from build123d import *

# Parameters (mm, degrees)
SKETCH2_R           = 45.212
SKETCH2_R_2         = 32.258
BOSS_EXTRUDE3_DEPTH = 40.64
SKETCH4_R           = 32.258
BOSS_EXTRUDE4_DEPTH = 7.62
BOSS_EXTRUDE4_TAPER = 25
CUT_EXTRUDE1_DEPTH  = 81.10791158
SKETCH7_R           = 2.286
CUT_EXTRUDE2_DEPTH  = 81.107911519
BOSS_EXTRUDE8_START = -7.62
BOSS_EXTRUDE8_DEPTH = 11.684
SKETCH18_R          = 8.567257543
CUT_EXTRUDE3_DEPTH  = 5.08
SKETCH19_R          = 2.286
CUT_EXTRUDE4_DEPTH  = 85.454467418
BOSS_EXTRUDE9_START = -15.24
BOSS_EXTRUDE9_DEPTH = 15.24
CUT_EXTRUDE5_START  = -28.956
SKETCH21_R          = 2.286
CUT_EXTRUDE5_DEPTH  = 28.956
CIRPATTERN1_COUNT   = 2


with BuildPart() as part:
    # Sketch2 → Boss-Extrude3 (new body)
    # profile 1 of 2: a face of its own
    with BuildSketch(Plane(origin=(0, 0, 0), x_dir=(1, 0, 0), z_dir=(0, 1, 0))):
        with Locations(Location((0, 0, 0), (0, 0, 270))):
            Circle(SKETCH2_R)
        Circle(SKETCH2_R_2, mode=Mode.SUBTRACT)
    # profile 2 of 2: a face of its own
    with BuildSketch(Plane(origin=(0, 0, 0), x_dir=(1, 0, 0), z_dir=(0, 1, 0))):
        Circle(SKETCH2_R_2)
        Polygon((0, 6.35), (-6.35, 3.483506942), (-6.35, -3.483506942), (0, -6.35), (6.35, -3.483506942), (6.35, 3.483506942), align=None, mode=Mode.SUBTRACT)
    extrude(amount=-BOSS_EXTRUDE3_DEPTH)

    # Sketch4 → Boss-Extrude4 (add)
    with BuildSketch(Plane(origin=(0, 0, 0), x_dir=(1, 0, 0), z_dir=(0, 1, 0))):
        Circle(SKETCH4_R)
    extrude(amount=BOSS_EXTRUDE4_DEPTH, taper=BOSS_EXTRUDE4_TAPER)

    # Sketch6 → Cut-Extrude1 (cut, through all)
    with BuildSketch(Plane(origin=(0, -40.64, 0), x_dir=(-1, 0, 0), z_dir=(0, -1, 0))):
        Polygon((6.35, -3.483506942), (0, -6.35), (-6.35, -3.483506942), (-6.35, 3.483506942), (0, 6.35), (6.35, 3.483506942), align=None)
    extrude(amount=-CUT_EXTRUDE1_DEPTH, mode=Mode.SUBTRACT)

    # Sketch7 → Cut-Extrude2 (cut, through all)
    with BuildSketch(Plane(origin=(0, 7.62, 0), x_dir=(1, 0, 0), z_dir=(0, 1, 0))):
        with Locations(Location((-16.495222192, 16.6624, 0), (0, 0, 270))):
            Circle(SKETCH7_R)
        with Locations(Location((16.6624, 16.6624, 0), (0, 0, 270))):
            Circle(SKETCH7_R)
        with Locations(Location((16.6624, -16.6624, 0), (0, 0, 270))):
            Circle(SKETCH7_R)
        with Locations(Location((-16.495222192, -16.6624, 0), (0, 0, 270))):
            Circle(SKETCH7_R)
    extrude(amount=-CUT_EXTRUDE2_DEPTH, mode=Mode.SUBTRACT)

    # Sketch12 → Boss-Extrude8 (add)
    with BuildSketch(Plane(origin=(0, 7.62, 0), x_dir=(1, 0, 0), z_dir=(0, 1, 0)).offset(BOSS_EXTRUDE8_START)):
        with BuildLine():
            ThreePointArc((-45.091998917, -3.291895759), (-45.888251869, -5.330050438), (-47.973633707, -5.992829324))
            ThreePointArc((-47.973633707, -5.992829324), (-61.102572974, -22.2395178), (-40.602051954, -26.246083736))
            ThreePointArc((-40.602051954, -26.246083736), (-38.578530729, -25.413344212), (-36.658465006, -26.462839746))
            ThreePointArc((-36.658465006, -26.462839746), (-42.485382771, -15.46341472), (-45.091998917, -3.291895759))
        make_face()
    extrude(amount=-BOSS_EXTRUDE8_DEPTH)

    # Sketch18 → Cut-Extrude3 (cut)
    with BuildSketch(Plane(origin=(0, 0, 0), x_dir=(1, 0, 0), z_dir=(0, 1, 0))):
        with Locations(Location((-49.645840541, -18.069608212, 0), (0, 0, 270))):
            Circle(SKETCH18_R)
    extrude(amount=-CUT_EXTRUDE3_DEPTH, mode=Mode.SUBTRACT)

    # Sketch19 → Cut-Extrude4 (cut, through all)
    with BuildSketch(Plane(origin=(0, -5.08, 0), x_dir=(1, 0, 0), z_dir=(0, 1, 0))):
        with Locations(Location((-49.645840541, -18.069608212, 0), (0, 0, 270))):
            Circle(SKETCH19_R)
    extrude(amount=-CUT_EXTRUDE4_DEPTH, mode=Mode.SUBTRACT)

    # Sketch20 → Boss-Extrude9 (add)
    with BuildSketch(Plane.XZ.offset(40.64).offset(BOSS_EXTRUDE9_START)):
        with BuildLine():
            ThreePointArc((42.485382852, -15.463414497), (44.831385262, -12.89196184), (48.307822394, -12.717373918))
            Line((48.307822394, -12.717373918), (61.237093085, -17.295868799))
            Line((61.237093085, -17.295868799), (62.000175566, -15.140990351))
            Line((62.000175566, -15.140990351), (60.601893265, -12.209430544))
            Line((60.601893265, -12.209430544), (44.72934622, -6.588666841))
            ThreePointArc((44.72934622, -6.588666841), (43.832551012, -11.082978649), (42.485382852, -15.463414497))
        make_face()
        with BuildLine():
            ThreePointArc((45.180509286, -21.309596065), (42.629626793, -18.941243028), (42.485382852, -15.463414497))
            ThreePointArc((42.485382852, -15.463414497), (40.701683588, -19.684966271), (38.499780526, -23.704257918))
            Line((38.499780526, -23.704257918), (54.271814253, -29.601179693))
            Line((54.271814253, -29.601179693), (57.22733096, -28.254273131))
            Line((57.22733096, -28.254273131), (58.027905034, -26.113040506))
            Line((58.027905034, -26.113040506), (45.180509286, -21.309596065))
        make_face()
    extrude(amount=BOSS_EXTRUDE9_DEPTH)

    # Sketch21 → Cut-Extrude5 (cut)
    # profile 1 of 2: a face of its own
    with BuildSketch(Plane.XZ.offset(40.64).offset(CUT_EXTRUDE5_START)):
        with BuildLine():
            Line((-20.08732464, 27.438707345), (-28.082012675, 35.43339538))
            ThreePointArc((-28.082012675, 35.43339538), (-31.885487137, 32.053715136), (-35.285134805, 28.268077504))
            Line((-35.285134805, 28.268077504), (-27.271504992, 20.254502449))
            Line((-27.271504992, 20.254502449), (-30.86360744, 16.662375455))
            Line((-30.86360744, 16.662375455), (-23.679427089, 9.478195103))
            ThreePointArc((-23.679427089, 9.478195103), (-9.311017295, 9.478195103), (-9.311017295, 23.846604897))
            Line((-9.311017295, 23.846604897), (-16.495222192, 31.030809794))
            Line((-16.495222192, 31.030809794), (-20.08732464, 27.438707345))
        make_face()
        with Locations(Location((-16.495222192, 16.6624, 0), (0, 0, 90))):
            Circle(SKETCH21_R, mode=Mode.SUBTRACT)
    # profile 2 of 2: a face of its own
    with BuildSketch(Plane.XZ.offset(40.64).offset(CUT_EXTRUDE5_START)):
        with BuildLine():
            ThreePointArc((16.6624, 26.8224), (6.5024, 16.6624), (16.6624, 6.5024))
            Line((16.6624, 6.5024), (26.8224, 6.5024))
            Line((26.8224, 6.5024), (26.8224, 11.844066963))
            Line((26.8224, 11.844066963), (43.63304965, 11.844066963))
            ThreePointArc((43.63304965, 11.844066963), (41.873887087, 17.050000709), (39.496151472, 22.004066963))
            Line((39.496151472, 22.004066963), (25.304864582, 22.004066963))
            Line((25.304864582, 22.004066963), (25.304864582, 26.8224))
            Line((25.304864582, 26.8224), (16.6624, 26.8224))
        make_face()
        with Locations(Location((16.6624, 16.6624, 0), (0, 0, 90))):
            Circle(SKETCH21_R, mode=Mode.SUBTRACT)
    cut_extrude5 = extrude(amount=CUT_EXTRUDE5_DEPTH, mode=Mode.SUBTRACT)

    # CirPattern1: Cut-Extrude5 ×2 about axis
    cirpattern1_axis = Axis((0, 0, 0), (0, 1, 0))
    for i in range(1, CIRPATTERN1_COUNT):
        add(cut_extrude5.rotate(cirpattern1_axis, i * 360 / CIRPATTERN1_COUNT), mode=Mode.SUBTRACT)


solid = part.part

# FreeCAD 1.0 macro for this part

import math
import FreeCAD as App
import Part
import Sketcher
from FreeCAD import Vector
Q = App.Units.Quantity

doc = App.newDocument("Part")
body = doc.addObject("PartDesign::Body", "Body")

# Sketch on XZ plane
sketch1 = body.newObject("Sketcher::SketchObject", "Sketch")
sketch1.AttachmentSupport = (doc.getObject("XZ_Plane"), [""])
sketch1.MapMode = "FlatFace"
sketch1.addGeometry(Part.Circle(Vector(0, 0, 0), Vector(0, 0, 1), 45), False)
sketch1.addGeometry(Part.LineSegment(Vector(0, -6, 0), Vector(6, -3, 0)), False)
sketch1.addGeometry(Part.LineSegment(Vector(6, -3, 0), Vector(6, 3, 0)), False)
sketch1.addGeometry(Part.LineSegment(Vector(6, 3, 0), Vector(0, 6, 0)), False)
sketch1.addGeometry(Part.LineSegment(Vector(0, 6, 0), Vector(-6, 3, 0)), False)
sketch1.addGeometry(Part.LineSegment(Vector(-6, 3, 0), Vector(-6, -3, 0)), False)
sketch1.addGeometry(Part.LineSegment(Vector(-6, -3, 0), Vector(0, -6, 0)), False)
sketch1.addConstraint(Sketcher.Constraint("Coincident", 1, 2, 2, 1))
sketch1.addConstraint(Sketcher.Constraint("Coincident", 2, 2, 3, 1))
sketch1.addConstraint(Sketcher.Constraint("Coincident", 3, 2, 4, 1))
sketch1.addConstraint(Sketcher.Constraint("Coincident", 4, 2, 5, 1))
sketch1.addConstraint(Sketcher.Constraint("Coincident", 5, 2, 6, 1))
sketch1.addConstraint(Sketcher.Constraint("Coincident", 6, 2, 1, 1))
sketch1.addConstraint(Sketcher.Constraint("Vertical", 2))
sketch1.addConstraint(Sketcher.Constraint("Vertical", 5))
sketch1.addConstraint(Sketcher.Constraint("Coincident", 0, 3, -1, 1))
sketch1.addConstraint(Sketcher.Constraint("Symmetric", 1, 2, 4, 2, -1, 1))
sketch1.addConstraint(Sketcher.Constraint("Symmetric", 3, 2, 6, 2, -1, 1))
sketch1.addConstraint(Sketcher.Constraint("PointOnObject", 3, 2, -2))
sketch1.addConstraint(Sketcher.Constraint("Parallel", 3, 6))
sketch1.addConstraint(Sketcher.Constraint("Horizontal", 2, 2, 4, 2))
sketch1.addConstraint(Sketcher.Constraint("Diameter", 0, Q("3.56 in")))
sketch1.addConstraint(Sketcher.Constraint("DistanceX", 4, 2, 2, 2, Q("0.5 in")))
sketch1.addConstraint(Sketcher.Constraint("DistanceY", -1, 1, 3, 2, Q("0.25 in")))
sketch1.addConstraint(Sketcher.Constraint("DistanceY", 2, 1, 2, 2, Q("6.967014 mm")))
pad1 = body.newObject("PartDesign::Pad", "Pad")
pad1.Profile = sketch1
pad1.Length = Q("1.6 in")

# Sketch on XZ plane
sketch2 = body.newObject("Sketcher::SketchObject", "Sketch001")
sketch2.AttachmentSupport = (doc.getObject("XZ_Plane"), [""])
sketch2.MapMode = "FlatFace"
sketch2.addGeometry(Part.Circle(Vector(0, 0, 0), Vector(0, 0, 1), 32), False)
sketch2.addConstraint(Sketcher.Constraint("Coincident", 0, 3, -1, 1))
sketch2.addConstraint(Sketcher.Constraint("Diameter", 0, Q("2.54 in")))
pad2 = body.newObject("PartDesign::Pad", "Pad001")
pad2.Profile = sketch2
pad2.Length = Q("0.3 in")
pad2.Reversed = True
pad2.TaperAngle = -25

# Sketch on XZ plane
sketch3 = body.newObject("Sketcher::SketchObject", "Sketch002")
sketch3.AttachmentSupport = (doc.getObject("XZ_Plane"), [""])
sketch3.MapMode = "FlatFace"
sketch3.AttachmentOffset = App.Placement(Vector(0, 0, 1.6 * 25.4), App.Rotation())
sketch3.addGeometry(Part.LineSegment(Vector(0, 6, 0), Vector(-6, 3, 0)), False)
sketch3.addGeometry(Part.LineSegment(Vector(-6, 3, 0), Vector(-6, -3, 0)), False)
sketch3.addGeometry(Part.LineSegment(Vector(-6, -3, 0), Vector(0, -6, 0)), False)
sketch3.addGeometry(Part.LineSegment(Vector(0, -6, 0), Vector(6, -3, 0)), False)
sketch3.addGeometry(Part.LineSegment(Vector(6, -3, 0), Vector(6, 3, 0)), False)
sketch3.addGeometry(Part.LineSegment(Vector(6, 3, 0), Vector(0, 6, 0)), False)
sketch3.addConstraint(Sketcher.Constraint("Coincident", 0, 2, 1, 1))
sketch3.addConstraint(Sketcher.Constraint("Coincident", 1, 2, 2, 1))
sketch3.addConstraint(Sketcher.Constraint("Coincident", 2, 2, 3, 1))
sketch3.addConstraint(Sketcher.Constraint("Coincident", 3, 2, 4, 1))
sketch3.addConstraint(Sketcher.Constraint("Coincident", 4, 2, 5, 1))
sketch3.addConstraint(Sketcher.Constraint("Coincident", 5, 2, 0, 1))
sketch3.addConstraint(Sketcher.Constraint("Vertical", 1))
sketch3.addConstraint(Sketcher.Constraint("Vertical", 4))
sketch3.addConstraint(Sketcher.Constraint("Symmetric", 0, 2, 3, 2, -1, 1))
sketch3.addConstraint(Sketcher.Constraint("Symmetric", 2, 2, 5, 2, -1, 1))
sketch3.addConstraint(Sketcher.Constraint("PointOnObject", 2, 2, -2))
sketch3.addConstraint(Sketcher.Constraint("Parallel", 2, 5))
sketch3.addConstraint(Sketcher.Constraint("Horizontal", 1, 2, 3, 2))
sketch3.addConstraint(Sketcher.Constraint("DistanceX", 1, 2, 3, 2, Q("0.5 in")))
sketch3.addConstraint(Sketcher.Constraint("DistanceY", 2, 2, 5, 2, Q("0.5 in")))
sketch3.addConstraint(Sketcher.Constraint("DistanceY", 1, 2, 1, 1, Q("6.967014 mm")))
pocket1 = body.newObject("PartDesign::Pocket", "Pocket")
pocket1.Profile = sketch3
pocket1.Type = "ThroughAll"

# Sketch on XZ plane
sketch4 = body.newObject("Sketcher::SketchObject", "Sketch003")
sketch4.AttachmentSupport = (doc.getObject("XZ_Plane"), [""])
sketch4.MapMode = "FlatFace"
sketch4.AttachmentOffset = App.Placement(Vector(0, 0, -0.3 * 25.4), App.Rotation())
sketch4.addGeometry(Part.Circle(Vector(-16.5, -16.7, 0), Vector(0, 0, 1), 2.3), False)
sketch4.addGeometry(Part.Circle(Vector(16.7, -16.7, 0), Vector(0, 0, 1), 2.3), False)
sketch4.addGeometry(Part.Circle(Vector(16.7, 16.7, 0), Vector(0, 0, 1), 2.3), False)
sketch4.addGeometry(Part.Circle(Vector(-16.5, 16.7, 0), Vector(0, 0, 1), 2.3), False)
sketch4.addConstraint(Sketcher.Constraint("Equal", 0, 1))
sketch4.addConstraint(Sketcher.Constraint("Equal", 1, 2))
sketch4.addConstraint(Sketcher.Constraint("Equal", 2, 3))
sketch4.addConstraint(Sketcher.Constraint("Symmetric", 1, 3, 2, 3, -1))
sketch4.addConstraint(Sketcher.Constraint("Symmetric", 0, 3, 3, 3, -1))
sketch4.addConstraint(Sketcher.Constraint("Horizontal", 0, 3, 1, 3))
sketch4.addConstraint(Sketcher.Constraint("Diameter", 0, Q("0.18 in")))
sketch4.addConstraint(Sketcher.Constraint("DistanceY", 0, 3, -1, 1, Q("0.656 in")))
sketch4.addConstraint(Sketcher.Constraint("DistanceX", -1, 1, 1, 3, Q("0.656 in")))
sketch4.addConstraint(Sketcher.Constraint("DistanceX", 0, 3, -1, 1, Q("16.495222 mm")))
pocket2 = body.newObject("PartDesign::Pocket", "Pocket001")
pocket2.Profile = sketch4
pocket2.Type = "ThroughAll"
pocket2.Reversed = True

# Sketch on XZ plane
sketch5 = body.newObject("Sketcher::SketchObject", "Sketch004")
sketch5.AttachmentSupport = (doc.getObject("XZ_Plane"), [""])
sketch5.MapMode = "FlatFace"
sketch5.addGeometry(Part.ArcOfCircle(Part.Circle(Vector(-47.6, 3.5, 0), Vector(0, 0, 1), 2.5), math.radians(-4), math.radians(98)), False)
sketch5.addGeometry(Part.ArcOfCircle(Part.Circle(Vector(-49.6, 18.1, 0), Vector(0, 0, 1), 12.2), math.radians(42), math.radians(278)), False)
sketch5.addGeometry(Part.ArcOfCircle(Part.Circle(Vector(-38.7, 27.9, 0), Vector(0, 0, 1), 2.5), math.radians(-138), math.radians(-36)), False)
sketch5.addGeometry(Part.ArcOfCircle(Part.Circle(Vector(0, 0, 0), Vector(0, 0, 1), 45.2), math.radians(144), math.radians(176)), False)
sketch5.addConstraint(Sketcher.Constraint("Tangent", 0, 2, 1, 2))
sketch5.addConstraint(Sketcher.Constraint("Tangent", 1, 1, 2, 1))
sketch5.addConstraint(Sketcher.Constraint("Tangent", 2, 2, 3, 1))
sketch5.addConstraint(Sketcher.Constraint("Tangent", 3, 2, 0, 1))
sketch5.addConstraint(Sketcher.Constraint("Coincident", 3, 3, -1, 1))
sketch5.addConstraint(Sketcher.Constraint("Equal", 0, 2))
sketch5.addConstraint(Sketcher.Constraint("Radius", 0, Q("0.1 in")))
sketch5.addConstraint(Sketcher.Constraint("Radius", 1, Q("0.48 in")))
sketch5.addConstraint(Sketcher.Constraint("Radius", 3, Q("1.78 in")))
sketch5.addConstraint(Sketcher.Constraint("DistanceX", 3, 2, -1, 1, Q("45.091999 mm")))
sketch5.addConstraint(Sketcher.Constraint("DistanceX", 1, 3, -1, 1, Q("49.645841 mm")))
pad3 = body.newObject("PartDesign::Pad", "Pad002")
pad3.Profile = sketch5
pad3.Length = Q("0.46 in")

# Sketch on XZ plane
sketch6 = body.newObject("Sketcher::SketchObject", "Sketch005")
sketch6.AttachmentSupport = (doc.getObject("XZ_Plane"), [""])
sketch6.MapMode = "FlatFace"
sketch6.addGeometry(Part.Circle(Vector(-50, 18, 0), Vector(0, 0, 1), 9), False)
sketch6.addConstraint(Sketcher.Constraint("Diameter", 0, Q("17.134515 mm")))
sketch6.addConstraint(Sketcher.Constraint("DistanceX", 0, 3, -1, 1, Q("49.645841 mm")))
sketch6.addConstraint(Sketcher.Constraint("DistanceY", -1, 1, 0, 3, Q("18.069608 mm")))
pocket3 = body.newObject("PartDesign::Pocket", "Pocket002")
pocket3.Profile = sketch6
pocket3.Length = Q("0.2 in")
pocket3.Reversed = True

# Sketch on XZ plane
sketch7 = body.newObject("Sketcher::SketchObject", "Sketch006")
sketch7.AttachmentSupport = (doc.getObject("XZ_Plane"), [""])
sketch7.MapMode = "FlatFace"
sketch7.AttachmentOffset = App.Placement(Vector(0, 0, 0.2 * 25.4), App.Rotation())
sketch7.addGeometry(Part.Circle(Vector(-49.6, 18.1, 0), Vector(0, 0, 1), 2.3), False)
sketch7.addConstraint(Sketcher.Constraint("Diameter", 0, Q("0.18 in")))
sketch7.addConstraint(Sketcher.Constraint("DistanceX", 0, 3, -1, 1, Q("49.645841 mm")))
sketch7.addConstraint(Sketcher.Constraint("DistanceY", -1, 1, 0, 3, Q("18.069608 mm")))
pocket4 = body.newObject("PartDesign::Pocket", "Pocket003")
pocket4.Profile = sketch7
pocket4.Type = "ThroughAll"
pocket4.Reversed = True

# Sketch on XZ plane
sketch8 = body.newObject("Sketcher::SketchObject", "Sketch007")
sketch8.AttachmentSupport = (doc.getObject("XZ_Plane"), [""])
sketch8.MapMode = "FlatFace"
sketch8.AttachmentOffset = App.Placement(Vector(0, 0, 1 * 25.4), App.Rotation())
sketch8.addGeometry(Part.ArcOfCircle(Part.Circle(Vector(46.8, -17, 0), Vector(0, 0, 1), 4.6), math.radians(71), math.radians(160)), False)
sketch8.addGeometry(Part.LineSegment(Vector(48.3, -12.7, 0), Vector(61.2, -17.3, 0)), False)
sketch8.addGeometry(Part.LineSegment(Vector(61.2, -17.3, 0), Vector(62, -15.1, 0)), False)
sketch8.addGeometry(Part.LineSegment(Vector(62, -15.1, 0), Vector(60.6, -12.2, 0)), False)
sketch8.addGeometry(Part.LineSegment(Vector(60.6, -12.2, 0), Vector(44.7, -6.6, 0)), False)
sketch8.addGeometry(Part.ArcOfCircle(Part.Circle(Vector(0, 0, 0), Vector(0, 0, 1), 45.2), math.radians(-20), math.radians(-8.38)), False)
sketch8.addGeometry(Part.ArcOfCircle(Part.Circle(Vector(46.8, -17, 0), Vector(0, 0, 1), 4.6), math.radians(160), math.radians(249)), False)
sketch8.addGeometry(Part.ArcOfCircle(Part.Circle(Vector(0, 0, 0), Vector(0, 0, 1), 45.2), math.radians(-31.62), math.radians(-20)), False)
sketch8.addGeometry(Part.LineSegment(Vector(38.5, -23.7, 0), Vector(54.3, -29.6, 0)), False)
sketch8.addGeometry(Part.LineSegment(Vector(54.3, -29.6, 0), Vector(57.2, -28.3, 0)), False)
sketch8.addGeometry(Part.LineSegment(Vector(57.2, -28.3, 0), Vector(58, -26.1, 0)), False)
sketch8.addGeometry(Part.LineSegment(Vector(58, -26.1, 0), Vector(45.2, -21.3, 0)), False)
sketch8.addConstraint(Sketcher.Constraint("Tangent", 0, 1, 1, 1))
sketch8.addConstraint(Sketcher.Constraint("Coincident", 1, 2, 2, 1))
sketch8.addConstraint(Sketcher.Constraint("Coincident", 2, 2, 3, 1))
sketch8.addConstraint(Sketcher.Constraint("Coincident", 3, 2, 4, 1))
sketch8.addConstraint(Sketcher.Constraint("Coincident", 4, 2, 5, 2))
sketch8.addConstraint(Sketcher.Constraint("Tangent", 5, 1, 0, 2))
sketch8.addConstraint(Sketcher.Constraint("Tangent", 6, 1, 7, 2))
sketch8.addConstraint(Sketcher.Constraint("Coincident", 7, 1, 8, 1))
sketch8.addConstraint(Sketcher.Constraint("Coincident", 8, 2, 9, 1))
sketch8.addConstraint(Sketcher.Constraint("Coincident", 9, 2, 10, 1))
sketch8.addConstraint(Sketcher.Constraint("Coincident", 10, 2, 11, 1))
sketch8.addConstraint(Sketcher.Constraint("Tangent", 11, 2, 6, 2))
sketch8.addConstraint(Sketcher.Constraint("Coincident", 5, 3, -1, 1))
sketch8.addConstraint(Sketcher.Constraint("Coincident", 7, 3, -1, 1))
sketch8.addConstraint(Sketcher.Constraint("Coincident", 6, 3, 0, 3))
sketch8.addConstraint(Sketcher.Constraint("Equal", 0, 6))
sketch8.addConstraint(Sketcher.Constraint("Perpendicular", 1, 2))
sketch8.addConstraint(Sketcher.Constraint("Perpendicular", 2, 4))
sketch8.addConstraint(Sketcher.Constraint("Perpendicular", 8, 10))
sketch8.addConstraint(Sketcher.Constraint("Perpendicular", 10, 11))
sketch8.addConstraint(Sketcher.Constraint("Equal", 4, 8))
sketch8.addConstraint(Sketcher.Constraint("Equal", 3, 9))
sketch8.addConstraint(Sketcher.Constraint("Equal", 2, 10))
sketch8.addConstraint(Sketcher.Constraint("Equal", 1, 11))
sketch8.addConstraint(Sketcher.Constraint("Radius", 0, Q("0.18 in")))
sketch8.addConstraint(Sketcher.Constraint("Radius", 5, Q("1.78 in")))
sketch8.addConstraint(Sketcher.Constraint("Angle", 1, Q("-19.5 deg")))
sketch8.addConstraint(Sketcher.Constraint("Angle", 3, Q("115.5 deg")))
sketch8.addConstraint(Sketcher.Constraint("Angle", 8, Q("-20.5 deg")))
sketch8.addConstraint(Sketcher.Constraint("Angle", 9, Q("24.5 deg")))
sketch8.addConstraint(Sketcher.Constraint("Distance", 1, Q("0.54 in")))
sketch8.addConstraint(Sketcher.Constraint("Distance", 2, Q("0.09 in")))
sketch8.addConstraint(Sketcher.Constraint("DistanceX", 3, 2, 1, 2, Q("0.6352 mm")))
pad4 = body.newObject("PartDesign::Pad", "Pad003")
pad4.Profile = sketch8
pad4.Length = Q("0.6 in")

# Sketch on XZ plane
sketch9 = body.newObject("Sketcher::SketchObject", "Sketch008")
sketch9.AttachmentSupport = (doc.getObject("XZ_Plane"), [""])
sketch9.MapMode = "FlatFace"
sketch9.AttachmentOffset = App.Placement(Vector(0, 0, 0.46 * 25.4), App.Rotation())
sketch9.addGeometry(Part.LineSegment(Vector(-20.1, 27.4, 0), Vector(-28.1, 35.4, 0)), False)
sketch9.addGeometry(Part.ArcOfCircle(Part.Circle(Vector(0, 0, 0), Vector(0, 0, 1), 45.2), math.radians(128.4), math.radians(141.3)), False)
sketch9.addGeometry(Part.LineSegment(Vector(-35.3, 28.3, 0), Vector(-27.3, 20.3, 0)), False)
sketch9.addGeometry(Part.LineSegment(Vector(-27.3, 20.3, 0), Vector(-30.9, 16.7, 0)), False)
sketch9.addGeometry(Part.LineSegment(Vector(-30.9, 16.7, 0), Vector(-23.7, 9.5, 0)), False)
sketch9.addGeometry(Part.ArcOfCircle(Part.Circle(Vector(-16.5, 16.7, 0), Vector(0, 0, 1), 10.2), math.radians(-135), math.radians(45)), False)
sketch9.addGeometry(Part.LineSegment(Vector(-9.3, 23.8, 0), Vector(-16.5, 31, 0)), False)
sketch9.addGeometry(Part.LineSegment(Vector(-16.5, 31, 0), Vector(-20.1, 27.4, 0)), False)
sketch9.addGeometry(Part.Circle(Vector(-16.5, 16.7, 0), Vector(0, 0, 1), 2.3), False)
sketch9.addGeometry(Part.ArcOfCircle(Part.Circle(Vector(16.7, 16.7, 0), Vector(0, 0, 1), 10.2), math.radians(90), math.radians(270)), False)
sketch9.addGeometry(Part.LineSegment(Vector(16.7, 6.5, 0), Vector(26.8, 6.5, 0)), False)
sketch9.addGeometry(Part.LineSegment(Vector(26.8, 6.5, 0), Vector(26.8, 11.8, 0)), False)
sketch9.addGeometry(Part.LineSegment(Vector(26.8, 11.8, 0), Vector(43.6, 11.8, 0)), False)
sketch9.addGeometry(Part.ArcOfCircle(Part.Circle(Vector(0, 0, 0), Vector(0, 0, 1), 45.2), math.radians(15.19), math.radians(29.12)), False)
sketch9.addGeometry(Part.LineSegment(Vector(39.5, 22, 0), Vector(25.3, 22, 0)), False)
sketch9.addGeometry(Part.LineSegment(Vector(25.3, 22, 0), Vector(25.3, 26.8, 0)), False)
sketch9.addGeometry(Part.LineSegment(Vector(25.3, 26.8, 0), Vector(16.7, 26.8, 0)), False)
sketch9.addGeometry(Part.Circle(Vector(16.7, 16.7, 0), Vector(0, 0, 1), 2.3), False)
sketch9.addConstraint(Sketcher.Constraint("Coincident", 0, 2, 1, 1))
sketch9.addConstraint(Sketcher.Constraint("Coincident", 1, 2, 2, 1))
sketch9.addConstraint(Sketcher.Constraint("Coincident", 2, 2, 3, 1))
sketch9.addConstraint(Sketcher.Constraint("Coincident", 3, 2, 4, 1))
sketch9.addConstraint(Sketcher.Constraint("Tangent", 4, 2, 5, 1))
sketch9.addConstraint(Sketcher.Constraint("Tangent", 5, 2, 6, 1))
sketch9.addConstraint(Sketcher.Constraint("Coincident", 6, 2, 7, 1))
sketch9.addConstraint(Sketcher.Constraint("Coincident", 7, 2, 0, 1))
sketch9.addConstraint(Sketcher.Constraint("Tangent", 9, 2, 10, 1))
sketch9.addConstraint(Sketcher.Constraint("Coincident", 10, 2, 11, 1))
sketch9.addConstraint(Sketcher.Constraint("Coincident", 11, 2, 12, 1))
sketch9.addConstraint(Sketcher.Constraint("Coincident", 12, 2, 13, 1))
sketch9.addConstraint(Sketcher.Constraint("Coincident", 13, 2, 14, 1))
sketch9.addConstraint(Sketcher.Constraint("Coincident", 14, 2, 15, 1))
sketch9.addConstraint(Sketcher.Constraint("Coincident", 15, 2, 16, 1))
sketch9.addConstraint(Sketcher.Constraint("Tangent", 16, 2, 9, 1))
sketch9.addConstraint(Sketcher.Constraint("Horizontal", 10))
sketch9.addConstraint(Sketcher.Constraint("Vertical", 11))
sketch9.addConstraint(Sketcher.Constraint("Horizontal", 12))
sketch9.addConstraint(Sketcher.Constraint("Horizontal", 14))
sketch9.addConstraint(Sketcher.Constraint("Vertical", 15))
sketch9.addConstraint(Sketcher.Constraint("Horizontal", 16))
sketch9.addConstraint(Sketcher.Constraint("Coincident", 1, 3, -1, 1))
sketch9.addConstraint(Sketcher.Constraint("Coincident", 13, 3, -1, 1))
sketch9.addConstraint(Sketcher.Constraint("Coincident", 8, 3, 5, 3))
sketch9.addConstraint(Sketcher.Constraint("Coincident", 17, 3, 9, 3))
sketch9.addConstraint(Sketcher.Constraint("Equal", 5, 9))
sketch9.addConstraint(Sketcher.Constraint("Equal", 1, 13))
sketch9.addConstraint(Sketcher.Constraint("Equal", 8, 17))
sketch9.addConstraint(Sketcher.Constraint("Perpendicular", 2, 3))
sketch9.addConstraint(Sketcher.Constraint("Parallel", 0, 4))
sketch9.addConstraint(Sketcher.Constraint("Parallel", 4, 6))
sketch9.addConstraint(Sketcher.Constraint("Perpendicular", 6, 7))
sketch9.addConstraint(Sketcher.Constraint("Horizontal", 8, 3, 9, 3))
sketch9.addConstraint(Sketcher.Constraint("Vertical", 8, 3, 6, 2))
sketch9.addConstraint(Sketcher.Constraint("Radius", 5, Q("0.4 in")))
sketch9.addConstraint(Sketcher.Constraint("Diameter", 8, Q("0.18 in")))
sketch9.addConstraint(Sketcher.Constraint("Radius", 1, Q("1.78 in")))
sketch9.addConstraint(Sketcher.Constraint("DistanceX", 10, 1, 10, 2, Q("0.4 in")))
sketch9.addConstraint(Sketcher.Constraint("Angle", 0, Q("135 deg")))
sketch9.addConstraint(Sketcher.Constraint("Distance", 7, Q("0.2 in")))
sketch9.addConstraint(Sketcher.Constraint("DistanceY", 12, 2, 13, 2, Q("0.4 in")))
sketch9.addConstraint(Sketcher.Constraint("DistanceY", -1, 1, 5, 3, Q("0.656 in")))
sketch9.addConstraint(Sketcher.Constraint("DistanceX", -1, 1, 9, 3, Q("0.656 in")))
sketch9.addConstraint(Sketcher.Constraint("DistanceX", 12, 1, 12, 2, Q("16.81065 mm")))
sketch9.addConstraint(Sketcher.Constraint("DistanceX", 14, 2, 14, 1, Q("14.191287 mm")))
sketch9.addConstraint(Sketcher.Constraint("DistanceX", 0, 2, 5, 3, Q("11.58679 mm")))
sketch9.addConstraint(Sketcher.Constraint("DistanceX", 1, 2, 2, 2, Q("8.01363 mm")))
sketch9.addConstraint(Sketcher.Constraint("DistanceY", 3, 2, 0, 2, Q("18.77102 mm")))
sketch9.addConstraint(Sketcher.Constraint("DistanceX", 2, 2, 7, 2, Q("7.18418 mm")))
pocket5 = body.newObject("PartDesign::Pocket", "Pocket004")
pocket5.Profile = sketch9
pocket5.Length = Q("1.14 in")
pocket5.Reversed = True
doc.recompute()

polarpattern = body.newObject("PartDesign::PolarPattern", "PolarPattern")
polarpattern.Originals = [pocket5]
polarpattern.Axis = (doc.getObject("Y_Axis"), [""])
polarpattern.Angle = 360
polarpattern.Occurrences = 2
body.Tip = polarpattern

doc.recompute()
